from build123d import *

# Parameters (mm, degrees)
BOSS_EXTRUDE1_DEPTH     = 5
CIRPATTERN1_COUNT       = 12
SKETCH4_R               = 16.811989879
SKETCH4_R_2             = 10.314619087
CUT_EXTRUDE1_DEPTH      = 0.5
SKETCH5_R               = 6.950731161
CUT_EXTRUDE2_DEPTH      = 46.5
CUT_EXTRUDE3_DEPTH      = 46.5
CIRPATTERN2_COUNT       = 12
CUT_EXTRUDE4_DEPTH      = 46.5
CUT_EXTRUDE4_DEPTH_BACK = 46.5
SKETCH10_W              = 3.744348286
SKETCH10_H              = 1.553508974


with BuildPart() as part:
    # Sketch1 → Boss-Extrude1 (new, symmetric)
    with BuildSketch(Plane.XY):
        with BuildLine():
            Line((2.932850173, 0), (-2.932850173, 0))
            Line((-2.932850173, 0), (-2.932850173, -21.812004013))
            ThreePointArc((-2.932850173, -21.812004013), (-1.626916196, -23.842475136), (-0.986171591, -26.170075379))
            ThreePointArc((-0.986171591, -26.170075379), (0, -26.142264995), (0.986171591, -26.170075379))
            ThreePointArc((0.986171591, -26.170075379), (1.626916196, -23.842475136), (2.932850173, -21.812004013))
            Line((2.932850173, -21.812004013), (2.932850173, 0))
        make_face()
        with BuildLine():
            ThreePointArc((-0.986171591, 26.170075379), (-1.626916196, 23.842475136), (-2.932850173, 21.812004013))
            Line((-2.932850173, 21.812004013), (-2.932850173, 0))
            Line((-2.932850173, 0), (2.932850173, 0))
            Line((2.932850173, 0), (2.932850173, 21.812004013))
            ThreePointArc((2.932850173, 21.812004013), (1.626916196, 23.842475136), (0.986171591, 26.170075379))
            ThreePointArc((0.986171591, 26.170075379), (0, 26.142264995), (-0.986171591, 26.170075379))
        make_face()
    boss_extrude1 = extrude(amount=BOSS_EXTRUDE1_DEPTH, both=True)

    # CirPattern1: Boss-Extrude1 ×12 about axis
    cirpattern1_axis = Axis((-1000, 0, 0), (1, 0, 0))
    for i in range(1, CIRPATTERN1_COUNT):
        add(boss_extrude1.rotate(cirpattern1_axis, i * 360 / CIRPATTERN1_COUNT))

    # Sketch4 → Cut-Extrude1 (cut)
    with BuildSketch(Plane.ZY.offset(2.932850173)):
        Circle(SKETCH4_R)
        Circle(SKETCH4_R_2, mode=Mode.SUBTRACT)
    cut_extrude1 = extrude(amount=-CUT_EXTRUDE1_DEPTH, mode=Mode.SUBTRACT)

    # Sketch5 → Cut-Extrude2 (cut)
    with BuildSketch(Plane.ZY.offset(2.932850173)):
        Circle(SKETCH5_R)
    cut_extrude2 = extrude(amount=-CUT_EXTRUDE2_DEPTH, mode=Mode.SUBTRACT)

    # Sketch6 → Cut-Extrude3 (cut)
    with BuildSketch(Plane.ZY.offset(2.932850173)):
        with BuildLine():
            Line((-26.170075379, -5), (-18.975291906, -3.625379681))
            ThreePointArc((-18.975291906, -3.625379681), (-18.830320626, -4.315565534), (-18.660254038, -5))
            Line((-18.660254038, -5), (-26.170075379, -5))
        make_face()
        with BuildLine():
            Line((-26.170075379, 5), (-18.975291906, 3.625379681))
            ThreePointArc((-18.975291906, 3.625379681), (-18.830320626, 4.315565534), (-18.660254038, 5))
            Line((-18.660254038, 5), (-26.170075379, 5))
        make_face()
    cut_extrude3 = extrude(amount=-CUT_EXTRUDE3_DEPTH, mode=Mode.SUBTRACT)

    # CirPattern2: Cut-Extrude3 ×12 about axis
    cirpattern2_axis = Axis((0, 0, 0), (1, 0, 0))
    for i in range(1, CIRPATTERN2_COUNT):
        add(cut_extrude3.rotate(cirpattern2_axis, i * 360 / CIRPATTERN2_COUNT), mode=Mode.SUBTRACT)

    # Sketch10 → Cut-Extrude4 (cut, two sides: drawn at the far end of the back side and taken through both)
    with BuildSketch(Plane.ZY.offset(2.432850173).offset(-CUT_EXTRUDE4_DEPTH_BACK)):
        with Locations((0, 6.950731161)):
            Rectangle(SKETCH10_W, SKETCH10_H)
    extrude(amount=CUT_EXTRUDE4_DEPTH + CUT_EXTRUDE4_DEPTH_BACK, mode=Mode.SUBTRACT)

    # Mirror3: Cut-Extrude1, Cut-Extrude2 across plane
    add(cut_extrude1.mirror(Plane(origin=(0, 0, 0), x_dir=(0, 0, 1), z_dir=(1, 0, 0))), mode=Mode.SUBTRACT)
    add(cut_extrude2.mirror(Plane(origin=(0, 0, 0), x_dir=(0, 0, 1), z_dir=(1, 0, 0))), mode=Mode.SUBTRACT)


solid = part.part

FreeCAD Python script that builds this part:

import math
import FreeCAD as App
import Part
import Sketcher


def add_polygon(sketch, points):
    """Adds a closed chain of lines whose ends are joined by coincident constraints."""
    first, n = sketch.GeometryCount, len(points)
    for a, b in zip(points, points[1:] + points[:1]):
        sketch.addGeometry(Part.LineSegment(App.Vector(*a, 0), App.Vector(*b, 0)), False)
    for i in range(n):
        sketch.addConstraint(Sketcher.Constraint("Coincident", first + i, 2, first + (i + 1) % n, 1))

doc = App.newDocument("Part")
body = doc.addObject("PartDesign::Body", "Body")

sketch1 = doc.addObject("Sketcher::SketchObject", "Sketch")
body.addObject(sketch1)
sketch1.AttachmentSupport = (doc.XY_Plane, [""])
sketch1.MapMode = "FlatFace"
sketch1.addGeometry(Part.ArcOfCircle(Part.Circle(App.Vector(-8.9, -27.1, 0), App.Vector(0, 0, 1), 8), math.radians(7), math.radians(41)), False)
sketch1.addGeometry(Part.ArcOfCircle(Part.Circle(App.Vector(0, -43.6, 0), App.Vector(0, 0, 1), 17.5), math.radians(86.77), math.radians(93.23)), False)
sketch1.addGeometry(Part.ArcOfCircle(Part.Circle(App.Vector(8.9, -27.1, 0), App.Vector(0, 0, 1), 8), math.radians(139), math.radians(173)), False)
sketch1.addGeometry(Part.LineSegment(App.Vector(2.9, -21.8, 0), App.Vector(2.9, 21.8, 0)), False)
sketch1.addGeometry(Part.ArcOfCircle(Part.Circle(App.Vector(8.9, 27.1, 0), App.Vector(0, 0, 1), 8), math.radians(-173), math.radians(-139)), False)
sketch1.addGeometry(Part.ArcOfCircle(Part.Circle(App.Vector(0, 43.6, 0), App.Vector(0, 0, 1), 17.5), math.radians(-93.23), math.radians(-86.77)), False)
sketch1.addGeometry(Part.ArcOfCircle(Part.Circle(App.Vector(-8.9, 27.1, 0), App.Vector(0, 0, 1), 8), math.radians(-41), math.radians(-7)), False)
sketch1.addGeometry(Part.LineSegment(App.Vector(-2.9, 21.8, 0), App.Vector(-2.9, -21.8, 0)), False)
sketch1.addConstraint(Sketcher.Constraint("Coincident", 0, 1, 1, 2))
sketch1.addConstraint(Sketcher.Constraint("Coincident", 1, 1, 2, 2))
sketch1.addConstraint(Sketcher.Constraint("Coincident", 2, 1, 3, 1))
sketch1.addConstraint(Sketcher.Constraint("Coincident", 3, 2, 4, 2))
sketch1.addConstraint(Sketcher.Constraint("Coincident", 4, 1, 5, 2))
sketch1.addConstraint(Sketcher.Constraint("Coincident", 5, 1, 6, 2))
sketch1.addConstraint(Sketcher.Constraint("Coincident", 6, 1, 7, 1))
sketch1.addConstraint(Sketcher.Constraint("Coincident", 7, 2, 0, 2))
sketch1.addConstraint(Sketcher.Constraint("Vertical", 3))
sketch1.addConstraint(Sketcher.Constraint("Vertical", 7))
sketch1.addConstraint(Sketcher.Constraint("Equal", 0, 2))
sketch1.addConstraint(Sketcher.Constraint("Equal", 2, 4))
sketch1.addConstraint(Sketcher.Constraint("Equal", 1, 5))
sketch1.addConstraint(Sketcher.Constraint("Equal", 4, 6))
sketch1.addConstraint(Sketcher.Constraint("Symmetric", 0, 3, 4, 3, -1, 1))
sketch1.addConstraint(Sketcher.Constraint("Symmetric", 1, 3, 5, 3, -1, 1))
sketch1.addConstraint(Sketcher.Constraint("Symmetric", 2, 3, 6, 3, -1, 1))
sketch1.addConstraint(Sketcher.Constraint("Symmetric", 0, 3, 2, 3, -2))
sketch1.addConstraint(Sketcher.Constraint("PointOnObject", 1, 3, -2))
sketch1.addConstraint(Sketcher.Constraint("Horizontal", 3, 2, 6, 1))
sketch1.addConstraint(Sketcher.Constraint("Radius", 0, 8.0))
sketch1.addConstraint(Sketcher.Constraint("Radius", 1, 17.499))
sketch1.addConstraint(Sketcher.Constraint("DistanceY", 3, 1, 3, 2, 43.624008))
sketch1.addConstraint(Sketcher.Constraint("DistanceY", 1, 3, 4, 3, 70.7465))
sketch1.addConstraint(Sketcher.Constraint("DistanceX", 6, 1, 3, 2, 5.8657))
sketch1.addConstraint(Sketcher.Constraint("DistanceX", 0, 1, -1, 1, 0.986172))
pad1 = doc.addObject("PartDesign::Pad", "Pad")
body.addObject(pad1)
pad1.Profile = sketch1
pad1.Length = 10
pad1.Midplane = True
doc.recompute()

polarpattern = doc.addObject("PartDesign::PolarPattern", "PolarPattern")
body.addObject(polarpattern)
polarpattern.Originals = [pad1]
polarpattern.Axis = (doc.X_Axis, [""])
polarpattern.Angle = 360
polarpattern.Occurrences = 12
body.Tip = polarpattern

sketch2 = doc.addObject("Sketcher::SketchObject", "Sketch001")
body.addObject(sketch2)
sketch2.AttachmentSupport = (doc.YZ_Plane, [""])
sketch2.MapMode = "FlatFace"
sketch2.AttachmentOffset = App.Placement(App.Vector(0, 0, -2.93285), App.Rotation())
sketch2.addGeometry(Part.Circle(App.Vector(0, 0, 0), App.Vector(0, 0, 1), 17), False)
sketch2.addGeometry(Part.Circle(App.Vector(0, 0, 0), App.Vector(0, 0, 1), 10), False)
sketch2.addConstraint(Sketcher.Constraint("Coincident", 0, 3, -1, 1))
sketch2.addConstraint(Sketcher.Constraint("Coincident", 1, 3, -1, 1))
sketch2.addConstraint(Sketcher.Constraint("Diameter", 0, 33.62398))
sketch2.addConstraint(Sketcher.Constraint("Diameter", 1, 20.629238))
pocket1 = doc.addObject("PartDesign::Pocket", "Pocket")
body.addObject(pocket1)
pocket1.Profile = sketch2
pocket1.Length = 0.5
pocket1.Reversed = True

sketch3 = doc.addObject("Sketcher::SketchObject", "Sketch002")
body.addObject(sketch3)
sketch3.AttachmentSupport = (doc.YZ_Plane, [""])
sketch3.MapMode = "FlatFace"
sketch3.AttachmentOffset = App.Placement(App.Vector(0, 0, -2.93285), App.Rotation())
sketch3.addGeometry(Part.Circle(App.Vector(0, 0, 0), App.Vector(0, 0, 1), 7), False)
sketch3.addConstraint(Sketcher.Constraint("Coincident", 0, 3, -1, 1))
sketch3.addConstraint(Sketcher.Constraint("Diameter", 0, 13.901462))
pocket2 = doc.addObject("PartDesign::Pocket", "Pocket001")
body.addObject(pocket2)
pocket2.Profile = sketch3
pocket2.Length = 46.5
pocket2.Reversed = True

sketch4 = doc.addObject("Sketcher::SketchObject", "Sketch003")
body.addObject(sketch4)
sketch4.AttachmentSupport = (doc.YZ_Plane, [""])
sketch4.MapMode = "FlatFace"
sketch4.AttachmentOffset = App.Placement(App.Vector(0, 0, -2.93285), App.Rotation())
sketch4.addGeometry(Part.LineSegment(App.Vector(-3.6, -19, 0), App.Vector(-5, -26.2, 0)), False)
sketch4.addGeometry(Part.LineSegment(App.Vector(-5, -26.2, 0), App.Vector(-5, -18.7, 0)), False)
sketch4.addGeometry(Part.ArcOfCircle(Part.Circle(App.Vector(0, 0, 0), App.Vector(0, 0, 1), 19.3), math.radians(-105), math.radians(-100.82)), False)
sketch4.addGeometry(Part.LineSegment(App.Vector(5, -26.2, 0), App.Vector(3.6, -19, 0)), False)
sketch4.addGeometry(Part.ArcOfCircle(Part.Circle(App.Vector(0, 0, 0), App.Vector(0, 0, 1), 19.3), math.radians(-79.18), math.radians(-75)), False)
sketch4.addGeometry(Part.LineSegment(App.Vector(5, -18.7, 0), App.Vector(5, -26.2, 0)), False)
sketch4.addConstraint(Sketcher.Constraint("Coincident", 0, 2, 1, 1))
sketch4.addConstraint(Sketcher.Constraint("Coincident", 1, 2, 2, 1))
sketch4.addConstraint(Sketcher.Constraint("Coincident", 2, 2, 0, 1))
sketch4.addConstraint(Sketcher.Constraint("Coincident", 3, 2, 4, 1))
sketch4.addConstraint(Sketcher.Constraint("Coincident", 4, 2, 5, 1))
sketch4.addConstraint(Sketcher.Constraint("Coincident", 5, 2, 3, 1))
sketch4.addConstraint(Sketcher.Constraint("Vertical", 1))
sketch4.addConstraint(Sketcher.Constraint("Vertical", 5))
sketch4.addConstraint(Sketcher.Constraint("Coincident", 2, 3, -1, 1))
sketch4.addConstraint(Sketcher.Constraint("Coincident", 4, 3, -1, 1))
sketch4.addConstraint(Sketcher.Constraint("Equal", 2, 4))
sketch4.addConstraint(Sketcher.Constraint("Symmetric", 0, 2, 5, 2, -2))
sketch4.addConstraint(Sketcher.Constraint("Horizontal", 2, 2, 3, 2))
sketch4.addConstraint(Sketcher.Constraint("DistanceX", 0, 2, -1, 1, 5.0))
sketch4.addConstraint(Sketcher.Constraint("Radius", 2, 19.318517))
sketch4.addConstraint(Sketcher.Constraint("DistanceY", 1, 1, 1, 2, 7.509821))
sketch4.addConstraint(Sketcher.Constraint("DistanceX", 2, 2, -1, 1, 3.62538))
pocket3 = doc.addObject("PartDesign::Pocket", "Pocket002")
body.addObject(pocket3)
pocket3.Profile = sketch4
pocket3.Length = 46.5
pocket3.Reversed = True
doc.recompute()

polarpattern2 = doc.addObject("PartDesign::PolarPattern", "PolarPattern001")
body.addObject(polarpattern2)
polarpattern2.Originals = [pocket3]
polarpattern2.Axis = (doc.X_Axis, [""])
polarpattern2.Angle = 360
polarpattern2.Occurrences = 12
body.Tip = polarpattern2

sketch5 = doc.addObject("Sketcher::SketchObject", "Sketch004")
body.addObject(sketch5)
sketch5.AttachmentSupport = (doc.YZ_Plane, [""])
sketch5.MapMode = "FlatFace"
sketch5.AttachmentOffset = App.Placement(App.Vector(0, 0, -2.43285), App.Rotation())
add_polygon(sketch5, [(7.7, -1.9), (6.2, -1.9), (6.2, 1.9), (7.7, 1.9)])
sketch5.addConstraint(Sketcher.Constraint("Horizontal", 0))
sketch5.addConstraint(Sketcher.Constraint("Vertical", 1))
sketch5.addConstraint(Sketcher.Constraint("Horizontal", 2))
sketch5.addConstraint(Sketcher.Constraint("Vertical", 3))
sketch5.addConstraint(Sketcher.Constraint("DistanceX", 0, 2, 0, 1, 1.553509))
sketch5.addConstraint(Sketcher.Constraint("DistanceY", 1, 1, 1, 2, 3.744348))
sketch5.addConstraint(Sketcher.Constraint("DistanceX", -1, 1, 0, 2, 6.173977))
sketch5.addConstraint(Sketcher.Constraint("DistanceY", 0, 2, -1, 1, 1.872174))
pocket4 = doc.addObject("PartDesign::Pocket", "Pocket003")
body.addObject(pocket4)
pocket4.Profile = sketch5
pocket4.Type = "ThroughAll"
pocket4.Midplane = True
doc.recompute()

mirrored = doc.addObject("PartDesign::Mirrored", "Mirrored")
body.addObject(mirrored)
mirrored.Originals = [pocket1, pocket2]
mirrored.MirrorPlane = (doc.YZ_Plane, [""])
body.Tip = mirrored

doc.recompute()
